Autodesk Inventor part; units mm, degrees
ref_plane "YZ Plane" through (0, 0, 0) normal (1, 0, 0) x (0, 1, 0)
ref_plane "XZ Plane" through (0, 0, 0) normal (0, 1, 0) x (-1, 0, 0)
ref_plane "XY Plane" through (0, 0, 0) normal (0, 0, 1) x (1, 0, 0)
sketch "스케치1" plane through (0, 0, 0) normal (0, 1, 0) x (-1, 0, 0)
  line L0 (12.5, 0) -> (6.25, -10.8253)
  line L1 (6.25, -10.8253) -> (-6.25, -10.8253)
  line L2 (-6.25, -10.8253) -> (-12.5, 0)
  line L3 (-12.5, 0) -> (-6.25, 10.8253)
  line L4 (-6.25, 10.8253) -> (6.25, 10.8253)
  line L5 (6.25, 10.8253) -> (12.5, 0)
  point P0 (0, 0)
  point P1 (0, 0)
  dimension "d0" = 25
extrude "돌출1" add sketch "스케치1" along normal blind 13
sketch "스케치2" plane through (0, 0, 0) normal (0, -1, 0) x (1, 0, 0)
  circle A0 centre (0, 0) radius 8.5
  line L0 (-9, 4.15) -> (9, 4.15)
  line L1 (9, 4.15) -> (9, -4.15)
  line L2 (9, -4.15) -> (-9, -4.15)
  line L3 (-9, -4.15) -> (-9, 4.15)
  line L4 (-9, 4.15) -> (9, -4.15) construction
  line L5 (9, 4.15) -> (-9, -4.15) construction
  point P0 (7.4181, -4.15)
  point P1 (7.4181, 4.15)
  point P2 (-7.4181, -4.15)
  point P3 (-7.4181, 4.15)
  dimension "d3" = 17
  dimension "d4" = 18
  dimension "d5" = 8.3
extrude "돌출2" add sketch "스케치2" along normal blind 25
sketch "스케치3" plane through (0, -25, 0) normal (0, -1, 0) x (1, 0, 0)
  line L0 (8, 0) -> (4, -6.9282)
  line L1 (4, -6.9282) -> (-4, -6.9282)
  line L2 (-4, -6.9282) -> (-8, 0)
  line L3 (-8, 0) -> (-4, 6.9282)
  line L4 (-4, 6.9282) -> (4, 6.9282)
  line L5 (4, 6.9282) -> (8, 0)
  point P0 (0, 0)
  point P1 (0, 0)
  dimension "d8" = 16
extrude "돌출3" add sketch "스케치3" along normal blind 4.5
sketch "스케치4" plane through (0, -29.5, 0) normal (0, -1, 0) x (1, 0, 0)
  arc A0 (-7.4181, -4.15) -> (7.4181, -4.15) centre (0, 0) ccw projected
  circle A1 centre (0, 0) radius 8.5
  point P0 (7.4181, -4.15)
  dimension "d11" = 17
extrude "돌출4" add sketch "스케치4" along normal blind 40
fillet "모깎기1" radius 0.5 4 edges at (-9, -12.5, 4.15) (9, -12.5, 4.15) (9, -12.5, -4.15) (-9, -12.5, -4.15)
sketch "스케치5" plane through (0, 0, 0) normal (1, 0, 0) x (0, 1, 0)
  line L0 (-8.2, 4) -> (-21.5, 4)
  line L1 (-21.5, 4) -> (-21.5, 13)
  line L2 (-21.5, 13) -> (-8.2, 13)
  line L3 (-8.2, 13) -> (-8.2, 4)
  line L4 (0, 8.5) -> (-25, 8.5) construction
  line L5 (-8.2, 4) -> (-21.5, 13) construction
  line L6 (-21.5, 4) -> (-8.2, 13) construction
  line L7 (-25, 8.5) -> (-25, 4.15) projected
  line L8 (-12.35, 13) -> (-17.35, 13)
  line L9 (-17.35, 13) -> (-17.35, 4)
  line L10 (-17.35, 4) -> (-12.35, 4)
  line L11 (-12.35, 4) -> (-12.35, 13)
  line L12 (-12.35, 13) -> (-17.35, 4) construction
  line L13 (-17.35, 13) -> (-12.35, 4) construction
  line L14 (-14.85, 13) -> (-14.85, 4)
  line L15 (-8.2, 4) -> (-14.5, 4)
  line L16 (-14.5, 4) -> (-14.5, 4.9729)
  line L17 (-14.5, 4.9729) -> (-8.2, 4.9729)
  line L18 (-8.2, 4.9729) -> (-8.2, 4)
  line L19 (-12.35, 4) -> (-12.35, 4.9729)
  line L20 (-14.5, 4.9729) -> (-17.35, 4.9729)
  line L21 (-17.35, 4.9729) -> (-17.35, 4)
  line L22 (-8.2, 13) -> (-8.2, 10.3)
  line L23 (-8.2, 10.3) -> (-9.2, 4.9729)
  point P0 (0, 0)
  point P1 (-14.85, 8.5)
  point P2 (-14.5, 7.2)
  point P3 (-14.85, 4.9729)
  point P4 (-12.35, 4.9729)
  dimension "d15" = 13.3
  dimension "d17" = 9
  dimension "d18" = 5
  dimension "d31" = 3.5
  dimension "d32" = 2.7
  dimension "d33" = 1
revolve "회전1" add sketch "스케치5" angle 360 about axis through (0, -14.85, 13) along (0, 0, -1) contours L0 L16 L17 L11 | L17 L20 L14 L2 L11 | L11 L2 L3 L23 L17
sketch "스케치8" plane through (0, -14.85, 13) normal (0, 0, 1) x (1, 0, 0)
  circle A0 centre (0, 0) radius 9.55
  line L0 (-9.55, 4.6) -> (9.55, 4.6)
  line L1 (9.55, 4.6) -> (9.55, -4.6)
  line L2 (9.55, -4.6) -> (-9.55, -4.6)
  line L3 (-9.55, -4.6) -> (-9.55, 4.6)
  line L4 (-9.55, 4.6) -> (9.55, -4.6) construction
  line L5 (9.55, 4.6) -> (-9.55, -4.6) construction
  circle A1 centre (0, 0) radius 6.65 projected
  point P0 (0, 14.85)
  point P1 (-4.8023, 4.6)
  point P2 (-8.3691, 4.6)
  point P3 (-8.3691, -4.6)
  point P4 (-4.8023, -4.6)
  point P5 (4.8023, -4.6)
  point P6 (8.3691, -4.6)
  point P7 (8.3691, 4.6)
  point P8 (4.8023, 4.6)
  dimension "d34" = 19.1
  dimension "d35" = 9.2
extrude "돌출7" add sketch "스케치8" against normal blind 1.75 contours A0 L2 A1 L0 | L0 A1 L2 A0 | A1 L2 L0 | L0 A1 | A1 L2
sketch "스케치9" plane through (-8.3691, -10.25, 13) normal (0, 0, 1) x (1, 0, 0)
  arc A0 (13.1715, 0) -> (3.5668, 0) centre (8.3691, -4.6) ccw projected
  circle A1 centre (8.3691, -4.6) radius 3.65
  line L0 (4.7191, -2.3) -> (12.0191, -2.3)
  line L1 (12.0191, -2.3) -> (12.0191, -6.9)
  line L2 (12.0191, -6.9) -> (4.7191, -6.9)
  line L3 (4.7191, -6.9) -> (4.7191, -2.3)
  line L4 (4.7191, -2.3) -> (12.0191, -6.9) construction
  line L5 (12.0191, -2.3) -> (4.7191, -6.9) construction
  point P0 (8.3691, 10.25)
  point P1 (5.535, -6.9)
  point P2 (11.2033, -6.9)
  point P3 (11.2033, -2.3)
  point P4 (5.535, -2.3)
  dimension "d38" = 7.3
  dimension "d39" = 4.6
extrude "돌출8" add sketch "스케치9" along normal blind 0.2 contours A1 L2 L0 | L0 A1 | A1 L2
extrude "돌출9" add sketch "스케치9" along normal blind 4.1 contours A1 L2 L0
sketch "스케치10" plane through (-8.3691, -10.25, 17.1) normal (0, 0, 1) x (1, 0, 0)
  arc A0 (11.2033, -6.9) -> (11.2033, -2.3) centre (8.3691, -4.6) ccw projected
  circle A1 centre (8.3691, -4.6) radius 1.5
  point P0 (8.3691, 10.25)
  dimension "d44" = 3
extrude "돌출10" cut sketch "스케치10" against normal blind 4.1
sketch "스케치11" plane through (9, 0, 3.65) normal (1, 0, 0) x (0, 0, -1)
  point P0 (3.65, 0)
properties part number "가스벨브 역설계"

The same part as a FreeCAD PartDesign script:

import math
import FreeCAD as App
import Part
import Sketcher
from FreeCAD import Vector
Q = App.Units.Quantity


def edges_at(feature, points):
    """Names of the edges that pass closest to the given points."""
    edges = feature.Shape.Edges
    near = lambda p: min(range(len(edges)), key=lambda i: edges[i].distToShape(Part.Vertex(*p))[0])
    return sorted({f"Edge{near(p) + 1}" for p in points})


def add_polygon(sketch, points):
    """Adds a closed chain of lines whose ends are joined by coincident constraints."""
    first, n = sketch.GeometryCount, len(points)
    for a, b in zip(points, points[1:] + points[:1]):
        sketch.addGeometry(Part.LineSegment(App.Vector(*a, 0), App.Vector(*b, 0)), False)
    for i in range(n):
        sketch.addConstraint(Sketcher.Constraint("Coincident", first + i, 2, first + (i + 1) % n, 1))

doc = App.newDocument("Part")
body = doc.addObject("PartDesign::Body", "Body")

# Sketch on XZ plane
sketch1 = body.newObject("Sketcher::SketchObject", "Sketch")
sketch1.AttachmentSupport = (doc.getObject("XZ_Plane"), [""])
sketch1.MapMode = "FlatFace"
add_polygon(sketch1, [(-6, -11), (-12, 0), (-6, 11), (6, 11), (12, 0), (6, -11)])  # lines 0-5
sketch1.addConstraint(Sketcher.Constraint("Horizontal", 2))
sketch1.addConstraint(Sketcher.Constraint("Horizontal", 5))
sketch1.addConstraint(Sketcher.Constraint("Symmetric", 0, 2, 3, 2, -1, 1))
sketch1.addConstraint(Sketcher.Constraint("Symmetric", 1, 2, 4, 2, -1, 1))
sketch1.addConstraint(Sketcher.Constraint("PointOnObject", 0, 2, -1))
sketch1.addConstraint(Sketcher.Constraint("Parallel", 0, 3))
sketch1.addConstraint(Sketcher.Constraint("Vertical", 2, 2, 4, 2))
sketch1.addConstraint(Sketcher.Constraint("DistanceX", 0, 2, 3, 2, Q("25 mm")))
sketch1.addConstraint(Sketcher.Constraint("Angle", 0, Q("120 deg")))
sketch1.addConstraint(Sketcher.Constraint("DistanceX", 2, 1, 2, 2, Q("12.5 mm")))
pad1 = body.newObject("PartDesign::Pad", "Pad")
pad1.Profile = sketch1
pad1.Length = 13
pad1.Reversed = True

# Sketch on XZ plane
sketch2 = body.newObject("Sketcher::SketchObject", "Sketch001")
sketch2.AttachmentSupport = (doc.getObject("XZ_Plane"), [""])
sketch2.MapMode = "FlatFace"
sketch2.addGeometry(Part.LineSegment(Vector(7.4, -4.2, 0), Vector(9, -4.2, 0)), False)
sketch2.addGeometry(Part.LineSegment(Vector(9, -4.2, 0), Vector(9, 4.2, 0)), False)
sketch2.addGeometry(Part.LineSegment(Vector(9, 4.2, 0), Vector(7.4, 4.2, 0)), False)
sketch2.addGeometry(Part.ArcOfCircle(Part.Circle(Vector(0, 0, 0), Vector(0, 0, 1), 8.5), math.radians(29), math.radians(151)), False)
sketch2.addGeometry(Part.LineSegment(Vector(-7.4, 4.2, 0), Vector(-9, 4.2, 0)), False)
sketch2.addGeometry(Part.LineSegment(Vector(-9, 4.2, 0), Vector(-9, -4.2, 0)), False)
sketch2.addGeometry(Part.LineSegment(Vector(-9, -4.2, 0), Vector(-7.4, -4.2, 0)), False)
sketch2.addGeometry(Part.ArcOfCircle(Part.Circle(Vector(0, 0, 0), Vector(0, 0, 1), 8.5), math.radians(-151), math.radians(-29)), False)
sketch2.addConstraint(Sketcher.Constraint("Coincident", 0, 2, 1, 1))
sketch2.addConstraint(Sketcher.Constraint("Coincident", 1, 2, 2, 1))
sketch2.addConstraint(Sketcher.Constraint("Coincident", 2, 2, 3, 1))
sketch2.addConstraint(Sketcher.Constraint("Coincident", 3, 2, 4, 1))
sketch2.addConstraint(Sketcher.Constraint("Coincident", 4, 2, 5, 1))
sketch2.addConstraint(Sketcher.Constraint("Coincident", 5, 2, 6, 1))
sketch2.addConstraint(Sketcher.Constraint("Coincident", 6, 2, 7, 1))
sketch2.addConstraint(Sketcher.Constraint("Coincident", 7, 2, 0, 1))
sketch2.addConstraint(Sketcher.Constraint("Horizontal", 0))
sketch2.addConstraint(Sketcher.Constraint("Vertical", 1))
sketch2.addConstraint(Sketcher.Constraint("Horizontal", 2))
sketch2.addConstraint(Sketcher.Constraint("Horizontal", 4))
sketch2.addConstraint(Sketcher.Constraint("Vertical", 5))
sketch2.addConstraint(Sketcher.Constraint("Horizontal", 6))
sketch2.addConstraint(Sketcher.Constraint("Coincident", 3, 3, -1, 1))
sketch2.addConstraint(Sketcher.Constraint("Coincident", 7, 3, -1, 1))
sketch2.addConstraint(Sketcher.Constraint("Equal", 3, 7))
sketch2.addConstraint(Sketcher.Constraint("Symmetric", 0, 2, 4, 2, -1, 1))
sketch2.addConstraint(Sketcher.Constraint("Horizontal", 2, 2, 3, 2))
sketch2.addConstraint(Sketcher.Constraint("Horizontal", 0, 2, 5, 2))
sketch2.addConstraint(Sketcher.Constraint("Radius", 3, Q("8.5 mm")))
sketch2.addConstraint(Sketcher.Constraint("DistanceY", 1, 1, 1, 2, Q("8.3 mm")))
sketch2.addConstraint(Sketcher.Constraint("DistanceX", 4, 2, 1, 2, Q("18 mm")))
pad2 = body.newObject("PartDesign::Pad", "Pad001")
pad2.Profile = sketch2
pad2.Length = 25

# Sketch on XZ plane
sketch3 = body.newObject("Sketcher::SketchObject", "Sketch002")
sketch3.AttachmentSupport = (doc.getObject("XZ_Plane"), [""])
sketch3.MapMode = "FlatFace"
sketch3.AttachmentOffset = App.Placement(Vector(0, 0, 25), App.Rotation())
add_polygon(sketch3, [(4, -7), (8, 0), (4, 7), (-4, 7), (-8, 0), (-4, -7)])  # lines 0-5
sketch3.addConstraint(Sketcher.Constraint("Horizontal", 2))
sketch3.addConstraint(Sketcher.Constraint("Horizontal", 5))
sketch3.addConstraint(Sketcher.Constraint("Symmetric", 0, 2, 3, 2, -1, 1))
sketch3.addConstraint(Sketcher.Constraint("Symmetric", 1, 2, 4, 2, -1, 1))
sketch3.addConstraint(Sketcher.Constraint("PointOnObject", 0, 2, -1))
sketch3.addConstraint(Sketcher.Constraint("Parallel", 0, 3))
sketch3.addConstraint(Sketcher.Constraint("Vertical", 2, 2, 4, 2))
sketch3.addConstraint(Sketcher.Constraint("DistanceX", 3, 2, 0, 2, Q("16 mm")))
sketch3.addConstraint(Sketcher.Constraint("DistanceX", 2, 2, 2, 1, Q("8 mm")))
sketch3.addConstraint(Sketcher.Constraint("Angle", 0, Q("60 deg")))
pad3 = body.newObject("PartDesign::Pad", "Pad002")
pad3.Profile = sketch3
pad3.Length = 4.5

# Sketch on XZ plane
sketch4 = body.newObject("Sketcher::SketchObject", "Sketch003")
sketch4.AttachmentSupport = (doc.getObject("XZ_Plane"), [""])
sketch4.MapMode = "FlatFace"
sketch4.AttachmentOffset = App.Placement(Vector(0, 0, 29.5), App.Rotation())
sketch4.addGeometry(Part.Circle(Vector(0, 0, 0), Vector(0, 0, 1), 9), False)
sketch4.addConstraint(Sketcher.Constraint("Coincident", 0, 3, -1, 1))
sketch4.addConstraint(Sketcher.Constraint("Diameter", 0, Q("17 mm")))
pad4 = body.newObject("PartDesign::Pad", "Pad003")
pad4.Profile = sketch4
pad4.Length = 40
doc.recompute()

fillet = body.newObject("PartDesign::Fillet", "Fillet")
fillet.Base = (pad4, edges_at(pad4, [
    (-9, -12.5, 4.15),
    (9, -12.5, 4.15),
    (9, -12.5, -4.15),
    (-9, -12.5, -4.15),
]))
fillet.Radius = 0.5

# Sketch on YZ plane
sketch5 = body.newObject("Sketcher::SketchObject", "Sketch004")
sketch5.AttachmentSupport = (doc.getObject("YZ_Plane"), [""])
sketch5.MapMode = "FlatFace"
add_polygon(sketch5, [(-14.5, 4), (-12.35, 4), (-12.35, 4.97), (-9.2, 4.97), (-8.2, 10.3), (-8.2, 13), (-14.85, 13), (-14.85, 4.97), (-14.5, 4.97)])  # lines 0-8
sketch5.addGeometry(Part.LineSegment(Vector(-14.85, 13, 0), Vector(-14.85, 4, 0)), True)  # axis
sketch5.addConstraint(Sketcher.Constraint("Horizontal", 0))
sketch5.addConstraint(Sketcher.Constraint("Vertical", 1))
sketch5.addConstraint(Sketcher.Constraint("Horizontal", 2))
sketch5.addConstraint(Sketcher.Constraint("Vertical", 4))
sketch5.addConstraint(Sketcher.Constraint("Horizontal", 5))
sketch5.addConstraint(Sketcher.Constraint("Vertical", 6))
sketch5.addConstraint(Sketcher.Constraint("Horizontal", 7))
sketch5.addConstraint(Sketcher.Constraint("Vertical", 8))
sketch5.addConstraint(Sketcher.Constraint("Vertical", 9))
sketch5.addConstraint(Sketcher.Constraint("Coincident", 9, 1, 5, 2))
sketch5.addConstraint(Sketcher.Constraint("Horizontal", 2, 2, 6, 2))
sketch5.addConstraint(Sketcher.Constraint("Horizontal", 8, 2, 9, 2))
sketch5.addConstraint(Sketcher.Constraint("DistanceY", 9, 2, 9, 1, Q("9 mm")))
sketch5.addConstraint(Sketcher.Constraint("DistanceY", 4, 1, 4, 2, Q("2.7 mm")))
sketch5.addConstraint(Sketcher.Constraint("DistanceX", 2, 2, 3, 2, Q("1 mm")))
sketch5.addConstraint(Sketcher.Constraint("DistanceY", -1, 1, 0, 2, Q("4 mm")))
sketch5.addConstraint(Sketcher.Constraint("DistanceX", 0, 1, 0, 2, Q("2.15 mm")))
sketch5.addConstraint(Sketcher.Constraint("DistanceX", 2, 1, 2, 2, Q("3.15 mm")))
sketch5.addConstraint(Sketcher.Constraint("DistanceX", 5, 2, 5, 1, Q("6.65 mm")))
sketch5.addConstraint(Sketcher.Constraint("DistanceX", 2, 2, -1, 1, Q("9.2 mm")))
sketch5.addConstraint(Sketcher.Constraint("DistanceY", 1, 1, 1, 2, Q("0.973 mm")))
revolution = body.newObject("PartDesign::Revolution", "Revolution")
revolution.Profile = sketch5
revolution.ReferenceAxis = (sketch5, ["Axis0"])
revolution.Angle = 360

# Sketch on XY plane
sketch6 = body.newObject("Sketcher::SketchObject", "Sketch005")
sketch6.AttachmentSupport = (doc.getObject("XY_Plane"), [""])
sketch6.MapMode = "FlatFace"
sketch6.AttachmentOffset = App.Placement(Vector(0, 0, 13), App.Rotation())
sketch6.addGeometry(Part.ArcOfCircle(Part.Circle(Vector(0, -14.8, 0), Vector(0, 0, 1), 9.6), math.radians(-29), math.radians(29)), False)
sketch6.addGeometry(Part.LineSegment(Vector(8.4, -10.2, 0), Vector(4.8, -10.2, 0)), False)
sketch6.addGeometry(Part.ArcOfCircle(Part.Circle(Vector(0, -14.8, 0), Vector(0, 0, 1), 6.7), math.radians(44), math.radians(136)), False)
sketch6.addGeometry(Part.LineSegment(Vector(-4.8, -10.2, 0), Vector(-8.4, -10.2, 0)), False)
sketch6.addGeometry(Part.ArcOfCircle(Part.Circle(Vector(0, -14.8, 0), Vector(0, 0, 1), 9.6), math.radians(151), math.radians(209)), False)
sketch6.addGeometry(Part.LineSegment(Vector(-8.4, -19.4, 0), Vector(-4.8, -19.4, 0)), False)
sketch6.addGeometry(Part.ArcOfCircle(Part.Circle(Vector(0, -14.8, 0), Vector(0, 0, 1), 6.7), math.radians(-136), math.radians(-44)), False)
sketch6.addGeometry(Part.LineSegment(Vector(4.8, -19.4, 0), Vector(8.4, -19.4, 0)), False)
sketch6.addConstraint(Sketcher.Constraint("Coincident", 0, 2, 1, 1))
sketch6.addConstraint(Sketcher.Constraint("Coincident", 1, 2, 2, 1))
sketch6.addConstraint(Sketcher.Constraint("Coincident", 2, 2, 3, 1))
sketch6.addConstraint(Sketcher.Constraint("Coincident", 3, 2, 4, 1))
sketch6.addConstraint(Sketcher.Constraint("Coincident", 4, 2, 5, 1))
sketch6.addConstraint(Sketcher.Constraint("Coincident", 5, 2, 6, 1))
sketch6.addConstraint(Sketcher.Constraint("Coincident", 6, 2, 7, 1))
sketch6.addConstraint(Sketcher.Constraint("Coincident", 7, 2, 0, 1))
sketch6.addConstraint(Sketcher.Constraint("Horizontal", 1))
sketch6.addConstraint(Sketcher.Constraint("Horizontal", 3))
sketch6.addConstraint(Sketcher.Constraint("Horizontal", 5))
sketch6.addConstraint(Sketcher.Constraint("Horizontal", 7))
sketch6.addConstraint(Sketcher.Constraint("Coincident", 2, 3, 0, 3))
sketch6.addConstraint(Sketcher.Constraint("Coincident", 4, 3, 0, 3))
sketch6.addConstraint(Sketcher.Constraint("Coincident", 6, 3, 0, 3))
sketch6.addConstraint(Sketcher.Constraint("Equal", 0, 4))
sketch6.addConstraint(Sketcher.Constraint("Equal", 2, 6))
sketch6.addConstraint(Sketcher.Constraint("Symmetric", 1, 2, 2, 2, -2))
sketch6.addConstraint(Sketcher.Constraint("Horizontal", 5, 2, 6, 2))
sketch6.addConstraint(Sketcher.Constraint("Vertical", 3, 2, 4, 2))
sketch6.addConstraint(Sketcher.Constraint("Radius", 0, Q("9.55 mm")))
sketch6.addConstraint(Sketcher.Constraint("DistanceY", 4, 2, 3, 2, Q("9.2 mm")))
sketch6.addConstraint(Sketcher.Constraint("Radius", 2, Q("6.65 mm")))
sketch6.addConstraint(Sketcher.Constraint("DistanceY", 0, 3, -1, 1, Q("14.85 mm")))
pad5 = body.newObject("PartDesign::Pad", "Pad004")
pad5.Profile = sketch6
pad5.Length = 1.75
pad5.Reversed = True

# Sketch on XY plane
sketch7 = body.newObject("Sketcher::SketchObject", "Sketch006")
sketch7.AttachmentSupport = (doc.getObject("XY_Plane"), [""])
sketch7.MapMode = "FlatFace"
sketch7.AttachmentOffset = App.Placement(Vector(0, 0, 13), App.Rotation())
sketch7.addGeometry(Part.Circle(Vector(0, -14.8, 0), Vector(0, 0, 1), 3.6), False)
sketch7.addConstraint(Sketcher.Constraint("PointOnObject", 0, 3, -2))
sketch7.addConstraint(Sketcher.Constraint("Diameter", 0, Q("7.3 mm")))
sketch7.addConstraint(Sketcher.Constraint("DistanceY", 0, 3, -1, 1, Q("14.85 mm")))
pad6 = body.newObject("PartDesign::Pad", "Pad005")
pad6.Profile = sketch7
pad6.Length = 0.2

# Sketch on XY plane
sketch8 = body.newObject("Sketcher::SketchObject", "Sketch007")
sketch8.AttachmentSupport = (doc.getObject("XY_Plane"), [""])
sketch8.MapMode = "FlatFace"
sketch8.AttachmentOffset = App.Placement(Vector(0, 0, 13), App.Rotation())
sketch8.addGeometry(Part.ArcOfCircle(Part.Circle(Vector(0, -14.8, 0), Vector(0, 0, 1), 3.6), math.radians(-39), math.radians(39)), False)
sketch8.addGeometry(Part.LineSegment(Vector(2.8, -12.6, 0), Vector(-2.8, -12.6, 0)), False)
sketch8.addGeometry(Part.ArcOfCircle(Part.Circle(Vector(0, -14.8, 0), Vector(0, 0, 1), 3.6), math.radians(141), math.radians(219)), False)
sketch8.addGeometry(Part.LineSegment(Vector(-2.8, -17.1, 0), Vector(2.8, -17.1, 0)), False)
sketch8.addConstraint(Sketcher.Constraint("Coincident", 0, 2, 1, 1))
sketch8.addConstraint(Sketcher.Constraint("Coincident", 1, 2, 2, 1))
sketch8.addConstraint(Sketcher.Constraint("Coincident", 2, 2, 3, 1))
sketch8.addConstraint(Sketcher.Constraint("Coincident", 3, 2, 0, 1))
sketch8.addConstraint(Sketcher.Constraint("Horizontal", 1))
sketch8.addConstraint(Sketcher.Constraint("Horizontal", 3))
sketch8.addConstraint(Sketcher.Constraint("Coincident", 2, 3, 0, 3))
sketch8.addConstraint(Sketcher.Constraint("Equal", 0, 2))
sketch8.addConstraint(Sketcher.Constraint("PointOnObject", 0, 3, -2))
sketch8.addConstraint(Sketcher.Constraint("Vertical", 1, 2, 2, 2))
sketch8.addConstraint(Sketcher.Constraint("Radius", 0, Q("3.65 mm")))
sketch8.addConstraint(Sketcher.Constraint("DistanceY", 2, 2, 1, 2, Q("4.6 mm")))
sketch8.addConstraint(Sketcher.Constraint("DistanceY", 0, 3, -1, 1, Q("14.85 mm")))
pad7 = body.newObject("PartDesign::Pad", "Pad006")
pad7.Profile = sketch8
pad7.Length = 4.1

# Sketch on XY plane
sketch9 = body.newObject("Sketcher::SketchObject", "Sketch008")
sketch9.AttachmentSupport = (doc.getObject("XY_Plane"), [""])
sketch9.MapMode = "FlatFace"
sketch9.AttachmentOffset = App.Placement(Vector(0, 0, 17.1), App.Rotation())
sketch9.addGeometry(Part.Circle(Vector(0, -14.8, 0), Vector(0, 0, 1), 1.5), False)
sketch9.addConstraint(Sketcher.Constraint("PointOnObject", 0, 3, -2))
sketch9.addConstraint(Sketcher.Constraint("Diameter", 0, Q("3 mm")))
sketch9.addConstraint(Sketcher.Constraint("DistanceY", 0, 3, -1, 1, Q("14.85 mm")))
pocket1 = body.newObject("PartDesign::Pocket", "Pocket")
pocket1.Profile = sketch9
pocket1.Length = 4.1

doc.recompute()
